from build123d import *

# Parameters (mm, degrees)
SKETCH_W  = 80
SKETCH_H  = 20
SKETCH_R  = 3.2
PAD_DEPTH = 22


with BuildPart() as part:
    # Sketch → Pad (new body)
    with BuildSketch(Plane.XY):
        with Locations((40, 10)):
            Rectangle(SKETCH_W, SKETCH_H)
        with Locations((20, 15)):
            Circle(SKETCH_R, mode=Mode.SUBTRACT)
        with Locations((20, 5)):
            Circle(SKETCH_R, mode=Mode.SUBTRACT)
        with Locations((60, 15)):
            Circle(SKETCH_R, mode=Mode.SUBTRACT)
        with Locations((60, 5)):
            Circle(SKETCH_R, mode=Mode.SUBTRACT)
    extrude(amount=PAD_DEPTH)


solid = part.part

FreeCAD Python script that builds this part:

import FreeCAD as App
import Part
import Sketcher
from FreeCAD import Vector

doc = App.newDocument("Part")
body = doc.addObject("PartDesign::Body", "Body")

# Sketch on XY plane
sketch1 = doc.addObject("Sketcher::SketchObject", "Sketch")
body.addObject(sketch1)
sketch1.AttachmentSupport = (doc.XY_Plane, [""])
sketch1.MapMode = "FlatFace"
sketch1.addGeometry([
    Part.LineSegment(Vector(0, 20, 0), Vector(0, 0, 0)),  # 0
    Part.LineSegment(Vector(0, 0, 0), Vector(80, 0, 0)),  # 1
    Part.LineSegment(Vector(80, 0, 0), Vector(80, 20, 0)),  # 2
    Part.LineSegment(Vector(80, 20, 0), Vector(0, 20, 0)),  # 3
    Part.Circle(Vector(20, 5, 0), Vector(0, 0, 1), 3.2),  # 4
    Part.Circle(Vector(60, 5, 0), Vector(0, 0, 1), 3.2),  # 5
    Part.Circle(Vector(20, 15, 0), Vector(0, 0, 1), 3.2),  # 6
    Part.Circle(Vector(60, 15, 0), Vector(0, 0, 1), 3.2),  # 7
], False)
sketch1.addConstraint([
    Sketcher.Constraint("Coincident", 0, 2, 1, 1),
    Sketcher.Constraint("Coincident", 1, 2, 2, 1),
    Sketcher.Constraint("Coincident", 2, 2, 3, 1),
    Sketcher.Constraint("Coincident", 3, 2, 0, 1),
    Sketcher.Constraint("Vertical", 0),
    Sketcher.Constraint("Horizontal", 1),
    Sketcher.Constraint("Vertical", 2),
    Sketcher.Constraint("Horizontal", 3),
    Sketcher.Constraint("Coincident", 0, 2, -1, 1),
    Sketcher.Constraint("Equal", 4, 5),
    Sketcher.Constraint("Equal", 5, 6),
    Sketcher.Constraint("Equal", 6, 7),
    Sketcher.Constraint("Horizontal", 4, 3, 5, 3),
    Sketcher.Constraint("Horizontal", 6, 3, 7, 3),
    Sketcher.Constraint("Vertical", 4, 3, 6, 3),
    Sketcher.Constraint("Vertical", 5, 3, 7, 3),
    Sketcher.Constraint("Diameter", 4, 6.4),
    Sketcher.Constraint("DistanceX", 1, 1, 1, 2, 80.0),
    Sketcher.Constraint("DistanceY", 0, 2, 0, 1, 20.0),
    Sketcher.Constraint("DistanceX", -1, 1, 4, 3, 20.0),
    Sketcher.Constraint("DistanceY", -1, 1, 4, 3, 5.0),
    Sketcher.Constraint("DistanceX", -1, 1, 5, 3, 60.0),
    Sketcher.Constraint("DistanceY", -1, 1, 6, 3, 15.0),
])
pad1 = doc.addObject("PartDesign::Pad", "Pad")
body.addObject(pad1)
pad1.Profile = sketch1
pad1.Length = 22

doc.recompute()
